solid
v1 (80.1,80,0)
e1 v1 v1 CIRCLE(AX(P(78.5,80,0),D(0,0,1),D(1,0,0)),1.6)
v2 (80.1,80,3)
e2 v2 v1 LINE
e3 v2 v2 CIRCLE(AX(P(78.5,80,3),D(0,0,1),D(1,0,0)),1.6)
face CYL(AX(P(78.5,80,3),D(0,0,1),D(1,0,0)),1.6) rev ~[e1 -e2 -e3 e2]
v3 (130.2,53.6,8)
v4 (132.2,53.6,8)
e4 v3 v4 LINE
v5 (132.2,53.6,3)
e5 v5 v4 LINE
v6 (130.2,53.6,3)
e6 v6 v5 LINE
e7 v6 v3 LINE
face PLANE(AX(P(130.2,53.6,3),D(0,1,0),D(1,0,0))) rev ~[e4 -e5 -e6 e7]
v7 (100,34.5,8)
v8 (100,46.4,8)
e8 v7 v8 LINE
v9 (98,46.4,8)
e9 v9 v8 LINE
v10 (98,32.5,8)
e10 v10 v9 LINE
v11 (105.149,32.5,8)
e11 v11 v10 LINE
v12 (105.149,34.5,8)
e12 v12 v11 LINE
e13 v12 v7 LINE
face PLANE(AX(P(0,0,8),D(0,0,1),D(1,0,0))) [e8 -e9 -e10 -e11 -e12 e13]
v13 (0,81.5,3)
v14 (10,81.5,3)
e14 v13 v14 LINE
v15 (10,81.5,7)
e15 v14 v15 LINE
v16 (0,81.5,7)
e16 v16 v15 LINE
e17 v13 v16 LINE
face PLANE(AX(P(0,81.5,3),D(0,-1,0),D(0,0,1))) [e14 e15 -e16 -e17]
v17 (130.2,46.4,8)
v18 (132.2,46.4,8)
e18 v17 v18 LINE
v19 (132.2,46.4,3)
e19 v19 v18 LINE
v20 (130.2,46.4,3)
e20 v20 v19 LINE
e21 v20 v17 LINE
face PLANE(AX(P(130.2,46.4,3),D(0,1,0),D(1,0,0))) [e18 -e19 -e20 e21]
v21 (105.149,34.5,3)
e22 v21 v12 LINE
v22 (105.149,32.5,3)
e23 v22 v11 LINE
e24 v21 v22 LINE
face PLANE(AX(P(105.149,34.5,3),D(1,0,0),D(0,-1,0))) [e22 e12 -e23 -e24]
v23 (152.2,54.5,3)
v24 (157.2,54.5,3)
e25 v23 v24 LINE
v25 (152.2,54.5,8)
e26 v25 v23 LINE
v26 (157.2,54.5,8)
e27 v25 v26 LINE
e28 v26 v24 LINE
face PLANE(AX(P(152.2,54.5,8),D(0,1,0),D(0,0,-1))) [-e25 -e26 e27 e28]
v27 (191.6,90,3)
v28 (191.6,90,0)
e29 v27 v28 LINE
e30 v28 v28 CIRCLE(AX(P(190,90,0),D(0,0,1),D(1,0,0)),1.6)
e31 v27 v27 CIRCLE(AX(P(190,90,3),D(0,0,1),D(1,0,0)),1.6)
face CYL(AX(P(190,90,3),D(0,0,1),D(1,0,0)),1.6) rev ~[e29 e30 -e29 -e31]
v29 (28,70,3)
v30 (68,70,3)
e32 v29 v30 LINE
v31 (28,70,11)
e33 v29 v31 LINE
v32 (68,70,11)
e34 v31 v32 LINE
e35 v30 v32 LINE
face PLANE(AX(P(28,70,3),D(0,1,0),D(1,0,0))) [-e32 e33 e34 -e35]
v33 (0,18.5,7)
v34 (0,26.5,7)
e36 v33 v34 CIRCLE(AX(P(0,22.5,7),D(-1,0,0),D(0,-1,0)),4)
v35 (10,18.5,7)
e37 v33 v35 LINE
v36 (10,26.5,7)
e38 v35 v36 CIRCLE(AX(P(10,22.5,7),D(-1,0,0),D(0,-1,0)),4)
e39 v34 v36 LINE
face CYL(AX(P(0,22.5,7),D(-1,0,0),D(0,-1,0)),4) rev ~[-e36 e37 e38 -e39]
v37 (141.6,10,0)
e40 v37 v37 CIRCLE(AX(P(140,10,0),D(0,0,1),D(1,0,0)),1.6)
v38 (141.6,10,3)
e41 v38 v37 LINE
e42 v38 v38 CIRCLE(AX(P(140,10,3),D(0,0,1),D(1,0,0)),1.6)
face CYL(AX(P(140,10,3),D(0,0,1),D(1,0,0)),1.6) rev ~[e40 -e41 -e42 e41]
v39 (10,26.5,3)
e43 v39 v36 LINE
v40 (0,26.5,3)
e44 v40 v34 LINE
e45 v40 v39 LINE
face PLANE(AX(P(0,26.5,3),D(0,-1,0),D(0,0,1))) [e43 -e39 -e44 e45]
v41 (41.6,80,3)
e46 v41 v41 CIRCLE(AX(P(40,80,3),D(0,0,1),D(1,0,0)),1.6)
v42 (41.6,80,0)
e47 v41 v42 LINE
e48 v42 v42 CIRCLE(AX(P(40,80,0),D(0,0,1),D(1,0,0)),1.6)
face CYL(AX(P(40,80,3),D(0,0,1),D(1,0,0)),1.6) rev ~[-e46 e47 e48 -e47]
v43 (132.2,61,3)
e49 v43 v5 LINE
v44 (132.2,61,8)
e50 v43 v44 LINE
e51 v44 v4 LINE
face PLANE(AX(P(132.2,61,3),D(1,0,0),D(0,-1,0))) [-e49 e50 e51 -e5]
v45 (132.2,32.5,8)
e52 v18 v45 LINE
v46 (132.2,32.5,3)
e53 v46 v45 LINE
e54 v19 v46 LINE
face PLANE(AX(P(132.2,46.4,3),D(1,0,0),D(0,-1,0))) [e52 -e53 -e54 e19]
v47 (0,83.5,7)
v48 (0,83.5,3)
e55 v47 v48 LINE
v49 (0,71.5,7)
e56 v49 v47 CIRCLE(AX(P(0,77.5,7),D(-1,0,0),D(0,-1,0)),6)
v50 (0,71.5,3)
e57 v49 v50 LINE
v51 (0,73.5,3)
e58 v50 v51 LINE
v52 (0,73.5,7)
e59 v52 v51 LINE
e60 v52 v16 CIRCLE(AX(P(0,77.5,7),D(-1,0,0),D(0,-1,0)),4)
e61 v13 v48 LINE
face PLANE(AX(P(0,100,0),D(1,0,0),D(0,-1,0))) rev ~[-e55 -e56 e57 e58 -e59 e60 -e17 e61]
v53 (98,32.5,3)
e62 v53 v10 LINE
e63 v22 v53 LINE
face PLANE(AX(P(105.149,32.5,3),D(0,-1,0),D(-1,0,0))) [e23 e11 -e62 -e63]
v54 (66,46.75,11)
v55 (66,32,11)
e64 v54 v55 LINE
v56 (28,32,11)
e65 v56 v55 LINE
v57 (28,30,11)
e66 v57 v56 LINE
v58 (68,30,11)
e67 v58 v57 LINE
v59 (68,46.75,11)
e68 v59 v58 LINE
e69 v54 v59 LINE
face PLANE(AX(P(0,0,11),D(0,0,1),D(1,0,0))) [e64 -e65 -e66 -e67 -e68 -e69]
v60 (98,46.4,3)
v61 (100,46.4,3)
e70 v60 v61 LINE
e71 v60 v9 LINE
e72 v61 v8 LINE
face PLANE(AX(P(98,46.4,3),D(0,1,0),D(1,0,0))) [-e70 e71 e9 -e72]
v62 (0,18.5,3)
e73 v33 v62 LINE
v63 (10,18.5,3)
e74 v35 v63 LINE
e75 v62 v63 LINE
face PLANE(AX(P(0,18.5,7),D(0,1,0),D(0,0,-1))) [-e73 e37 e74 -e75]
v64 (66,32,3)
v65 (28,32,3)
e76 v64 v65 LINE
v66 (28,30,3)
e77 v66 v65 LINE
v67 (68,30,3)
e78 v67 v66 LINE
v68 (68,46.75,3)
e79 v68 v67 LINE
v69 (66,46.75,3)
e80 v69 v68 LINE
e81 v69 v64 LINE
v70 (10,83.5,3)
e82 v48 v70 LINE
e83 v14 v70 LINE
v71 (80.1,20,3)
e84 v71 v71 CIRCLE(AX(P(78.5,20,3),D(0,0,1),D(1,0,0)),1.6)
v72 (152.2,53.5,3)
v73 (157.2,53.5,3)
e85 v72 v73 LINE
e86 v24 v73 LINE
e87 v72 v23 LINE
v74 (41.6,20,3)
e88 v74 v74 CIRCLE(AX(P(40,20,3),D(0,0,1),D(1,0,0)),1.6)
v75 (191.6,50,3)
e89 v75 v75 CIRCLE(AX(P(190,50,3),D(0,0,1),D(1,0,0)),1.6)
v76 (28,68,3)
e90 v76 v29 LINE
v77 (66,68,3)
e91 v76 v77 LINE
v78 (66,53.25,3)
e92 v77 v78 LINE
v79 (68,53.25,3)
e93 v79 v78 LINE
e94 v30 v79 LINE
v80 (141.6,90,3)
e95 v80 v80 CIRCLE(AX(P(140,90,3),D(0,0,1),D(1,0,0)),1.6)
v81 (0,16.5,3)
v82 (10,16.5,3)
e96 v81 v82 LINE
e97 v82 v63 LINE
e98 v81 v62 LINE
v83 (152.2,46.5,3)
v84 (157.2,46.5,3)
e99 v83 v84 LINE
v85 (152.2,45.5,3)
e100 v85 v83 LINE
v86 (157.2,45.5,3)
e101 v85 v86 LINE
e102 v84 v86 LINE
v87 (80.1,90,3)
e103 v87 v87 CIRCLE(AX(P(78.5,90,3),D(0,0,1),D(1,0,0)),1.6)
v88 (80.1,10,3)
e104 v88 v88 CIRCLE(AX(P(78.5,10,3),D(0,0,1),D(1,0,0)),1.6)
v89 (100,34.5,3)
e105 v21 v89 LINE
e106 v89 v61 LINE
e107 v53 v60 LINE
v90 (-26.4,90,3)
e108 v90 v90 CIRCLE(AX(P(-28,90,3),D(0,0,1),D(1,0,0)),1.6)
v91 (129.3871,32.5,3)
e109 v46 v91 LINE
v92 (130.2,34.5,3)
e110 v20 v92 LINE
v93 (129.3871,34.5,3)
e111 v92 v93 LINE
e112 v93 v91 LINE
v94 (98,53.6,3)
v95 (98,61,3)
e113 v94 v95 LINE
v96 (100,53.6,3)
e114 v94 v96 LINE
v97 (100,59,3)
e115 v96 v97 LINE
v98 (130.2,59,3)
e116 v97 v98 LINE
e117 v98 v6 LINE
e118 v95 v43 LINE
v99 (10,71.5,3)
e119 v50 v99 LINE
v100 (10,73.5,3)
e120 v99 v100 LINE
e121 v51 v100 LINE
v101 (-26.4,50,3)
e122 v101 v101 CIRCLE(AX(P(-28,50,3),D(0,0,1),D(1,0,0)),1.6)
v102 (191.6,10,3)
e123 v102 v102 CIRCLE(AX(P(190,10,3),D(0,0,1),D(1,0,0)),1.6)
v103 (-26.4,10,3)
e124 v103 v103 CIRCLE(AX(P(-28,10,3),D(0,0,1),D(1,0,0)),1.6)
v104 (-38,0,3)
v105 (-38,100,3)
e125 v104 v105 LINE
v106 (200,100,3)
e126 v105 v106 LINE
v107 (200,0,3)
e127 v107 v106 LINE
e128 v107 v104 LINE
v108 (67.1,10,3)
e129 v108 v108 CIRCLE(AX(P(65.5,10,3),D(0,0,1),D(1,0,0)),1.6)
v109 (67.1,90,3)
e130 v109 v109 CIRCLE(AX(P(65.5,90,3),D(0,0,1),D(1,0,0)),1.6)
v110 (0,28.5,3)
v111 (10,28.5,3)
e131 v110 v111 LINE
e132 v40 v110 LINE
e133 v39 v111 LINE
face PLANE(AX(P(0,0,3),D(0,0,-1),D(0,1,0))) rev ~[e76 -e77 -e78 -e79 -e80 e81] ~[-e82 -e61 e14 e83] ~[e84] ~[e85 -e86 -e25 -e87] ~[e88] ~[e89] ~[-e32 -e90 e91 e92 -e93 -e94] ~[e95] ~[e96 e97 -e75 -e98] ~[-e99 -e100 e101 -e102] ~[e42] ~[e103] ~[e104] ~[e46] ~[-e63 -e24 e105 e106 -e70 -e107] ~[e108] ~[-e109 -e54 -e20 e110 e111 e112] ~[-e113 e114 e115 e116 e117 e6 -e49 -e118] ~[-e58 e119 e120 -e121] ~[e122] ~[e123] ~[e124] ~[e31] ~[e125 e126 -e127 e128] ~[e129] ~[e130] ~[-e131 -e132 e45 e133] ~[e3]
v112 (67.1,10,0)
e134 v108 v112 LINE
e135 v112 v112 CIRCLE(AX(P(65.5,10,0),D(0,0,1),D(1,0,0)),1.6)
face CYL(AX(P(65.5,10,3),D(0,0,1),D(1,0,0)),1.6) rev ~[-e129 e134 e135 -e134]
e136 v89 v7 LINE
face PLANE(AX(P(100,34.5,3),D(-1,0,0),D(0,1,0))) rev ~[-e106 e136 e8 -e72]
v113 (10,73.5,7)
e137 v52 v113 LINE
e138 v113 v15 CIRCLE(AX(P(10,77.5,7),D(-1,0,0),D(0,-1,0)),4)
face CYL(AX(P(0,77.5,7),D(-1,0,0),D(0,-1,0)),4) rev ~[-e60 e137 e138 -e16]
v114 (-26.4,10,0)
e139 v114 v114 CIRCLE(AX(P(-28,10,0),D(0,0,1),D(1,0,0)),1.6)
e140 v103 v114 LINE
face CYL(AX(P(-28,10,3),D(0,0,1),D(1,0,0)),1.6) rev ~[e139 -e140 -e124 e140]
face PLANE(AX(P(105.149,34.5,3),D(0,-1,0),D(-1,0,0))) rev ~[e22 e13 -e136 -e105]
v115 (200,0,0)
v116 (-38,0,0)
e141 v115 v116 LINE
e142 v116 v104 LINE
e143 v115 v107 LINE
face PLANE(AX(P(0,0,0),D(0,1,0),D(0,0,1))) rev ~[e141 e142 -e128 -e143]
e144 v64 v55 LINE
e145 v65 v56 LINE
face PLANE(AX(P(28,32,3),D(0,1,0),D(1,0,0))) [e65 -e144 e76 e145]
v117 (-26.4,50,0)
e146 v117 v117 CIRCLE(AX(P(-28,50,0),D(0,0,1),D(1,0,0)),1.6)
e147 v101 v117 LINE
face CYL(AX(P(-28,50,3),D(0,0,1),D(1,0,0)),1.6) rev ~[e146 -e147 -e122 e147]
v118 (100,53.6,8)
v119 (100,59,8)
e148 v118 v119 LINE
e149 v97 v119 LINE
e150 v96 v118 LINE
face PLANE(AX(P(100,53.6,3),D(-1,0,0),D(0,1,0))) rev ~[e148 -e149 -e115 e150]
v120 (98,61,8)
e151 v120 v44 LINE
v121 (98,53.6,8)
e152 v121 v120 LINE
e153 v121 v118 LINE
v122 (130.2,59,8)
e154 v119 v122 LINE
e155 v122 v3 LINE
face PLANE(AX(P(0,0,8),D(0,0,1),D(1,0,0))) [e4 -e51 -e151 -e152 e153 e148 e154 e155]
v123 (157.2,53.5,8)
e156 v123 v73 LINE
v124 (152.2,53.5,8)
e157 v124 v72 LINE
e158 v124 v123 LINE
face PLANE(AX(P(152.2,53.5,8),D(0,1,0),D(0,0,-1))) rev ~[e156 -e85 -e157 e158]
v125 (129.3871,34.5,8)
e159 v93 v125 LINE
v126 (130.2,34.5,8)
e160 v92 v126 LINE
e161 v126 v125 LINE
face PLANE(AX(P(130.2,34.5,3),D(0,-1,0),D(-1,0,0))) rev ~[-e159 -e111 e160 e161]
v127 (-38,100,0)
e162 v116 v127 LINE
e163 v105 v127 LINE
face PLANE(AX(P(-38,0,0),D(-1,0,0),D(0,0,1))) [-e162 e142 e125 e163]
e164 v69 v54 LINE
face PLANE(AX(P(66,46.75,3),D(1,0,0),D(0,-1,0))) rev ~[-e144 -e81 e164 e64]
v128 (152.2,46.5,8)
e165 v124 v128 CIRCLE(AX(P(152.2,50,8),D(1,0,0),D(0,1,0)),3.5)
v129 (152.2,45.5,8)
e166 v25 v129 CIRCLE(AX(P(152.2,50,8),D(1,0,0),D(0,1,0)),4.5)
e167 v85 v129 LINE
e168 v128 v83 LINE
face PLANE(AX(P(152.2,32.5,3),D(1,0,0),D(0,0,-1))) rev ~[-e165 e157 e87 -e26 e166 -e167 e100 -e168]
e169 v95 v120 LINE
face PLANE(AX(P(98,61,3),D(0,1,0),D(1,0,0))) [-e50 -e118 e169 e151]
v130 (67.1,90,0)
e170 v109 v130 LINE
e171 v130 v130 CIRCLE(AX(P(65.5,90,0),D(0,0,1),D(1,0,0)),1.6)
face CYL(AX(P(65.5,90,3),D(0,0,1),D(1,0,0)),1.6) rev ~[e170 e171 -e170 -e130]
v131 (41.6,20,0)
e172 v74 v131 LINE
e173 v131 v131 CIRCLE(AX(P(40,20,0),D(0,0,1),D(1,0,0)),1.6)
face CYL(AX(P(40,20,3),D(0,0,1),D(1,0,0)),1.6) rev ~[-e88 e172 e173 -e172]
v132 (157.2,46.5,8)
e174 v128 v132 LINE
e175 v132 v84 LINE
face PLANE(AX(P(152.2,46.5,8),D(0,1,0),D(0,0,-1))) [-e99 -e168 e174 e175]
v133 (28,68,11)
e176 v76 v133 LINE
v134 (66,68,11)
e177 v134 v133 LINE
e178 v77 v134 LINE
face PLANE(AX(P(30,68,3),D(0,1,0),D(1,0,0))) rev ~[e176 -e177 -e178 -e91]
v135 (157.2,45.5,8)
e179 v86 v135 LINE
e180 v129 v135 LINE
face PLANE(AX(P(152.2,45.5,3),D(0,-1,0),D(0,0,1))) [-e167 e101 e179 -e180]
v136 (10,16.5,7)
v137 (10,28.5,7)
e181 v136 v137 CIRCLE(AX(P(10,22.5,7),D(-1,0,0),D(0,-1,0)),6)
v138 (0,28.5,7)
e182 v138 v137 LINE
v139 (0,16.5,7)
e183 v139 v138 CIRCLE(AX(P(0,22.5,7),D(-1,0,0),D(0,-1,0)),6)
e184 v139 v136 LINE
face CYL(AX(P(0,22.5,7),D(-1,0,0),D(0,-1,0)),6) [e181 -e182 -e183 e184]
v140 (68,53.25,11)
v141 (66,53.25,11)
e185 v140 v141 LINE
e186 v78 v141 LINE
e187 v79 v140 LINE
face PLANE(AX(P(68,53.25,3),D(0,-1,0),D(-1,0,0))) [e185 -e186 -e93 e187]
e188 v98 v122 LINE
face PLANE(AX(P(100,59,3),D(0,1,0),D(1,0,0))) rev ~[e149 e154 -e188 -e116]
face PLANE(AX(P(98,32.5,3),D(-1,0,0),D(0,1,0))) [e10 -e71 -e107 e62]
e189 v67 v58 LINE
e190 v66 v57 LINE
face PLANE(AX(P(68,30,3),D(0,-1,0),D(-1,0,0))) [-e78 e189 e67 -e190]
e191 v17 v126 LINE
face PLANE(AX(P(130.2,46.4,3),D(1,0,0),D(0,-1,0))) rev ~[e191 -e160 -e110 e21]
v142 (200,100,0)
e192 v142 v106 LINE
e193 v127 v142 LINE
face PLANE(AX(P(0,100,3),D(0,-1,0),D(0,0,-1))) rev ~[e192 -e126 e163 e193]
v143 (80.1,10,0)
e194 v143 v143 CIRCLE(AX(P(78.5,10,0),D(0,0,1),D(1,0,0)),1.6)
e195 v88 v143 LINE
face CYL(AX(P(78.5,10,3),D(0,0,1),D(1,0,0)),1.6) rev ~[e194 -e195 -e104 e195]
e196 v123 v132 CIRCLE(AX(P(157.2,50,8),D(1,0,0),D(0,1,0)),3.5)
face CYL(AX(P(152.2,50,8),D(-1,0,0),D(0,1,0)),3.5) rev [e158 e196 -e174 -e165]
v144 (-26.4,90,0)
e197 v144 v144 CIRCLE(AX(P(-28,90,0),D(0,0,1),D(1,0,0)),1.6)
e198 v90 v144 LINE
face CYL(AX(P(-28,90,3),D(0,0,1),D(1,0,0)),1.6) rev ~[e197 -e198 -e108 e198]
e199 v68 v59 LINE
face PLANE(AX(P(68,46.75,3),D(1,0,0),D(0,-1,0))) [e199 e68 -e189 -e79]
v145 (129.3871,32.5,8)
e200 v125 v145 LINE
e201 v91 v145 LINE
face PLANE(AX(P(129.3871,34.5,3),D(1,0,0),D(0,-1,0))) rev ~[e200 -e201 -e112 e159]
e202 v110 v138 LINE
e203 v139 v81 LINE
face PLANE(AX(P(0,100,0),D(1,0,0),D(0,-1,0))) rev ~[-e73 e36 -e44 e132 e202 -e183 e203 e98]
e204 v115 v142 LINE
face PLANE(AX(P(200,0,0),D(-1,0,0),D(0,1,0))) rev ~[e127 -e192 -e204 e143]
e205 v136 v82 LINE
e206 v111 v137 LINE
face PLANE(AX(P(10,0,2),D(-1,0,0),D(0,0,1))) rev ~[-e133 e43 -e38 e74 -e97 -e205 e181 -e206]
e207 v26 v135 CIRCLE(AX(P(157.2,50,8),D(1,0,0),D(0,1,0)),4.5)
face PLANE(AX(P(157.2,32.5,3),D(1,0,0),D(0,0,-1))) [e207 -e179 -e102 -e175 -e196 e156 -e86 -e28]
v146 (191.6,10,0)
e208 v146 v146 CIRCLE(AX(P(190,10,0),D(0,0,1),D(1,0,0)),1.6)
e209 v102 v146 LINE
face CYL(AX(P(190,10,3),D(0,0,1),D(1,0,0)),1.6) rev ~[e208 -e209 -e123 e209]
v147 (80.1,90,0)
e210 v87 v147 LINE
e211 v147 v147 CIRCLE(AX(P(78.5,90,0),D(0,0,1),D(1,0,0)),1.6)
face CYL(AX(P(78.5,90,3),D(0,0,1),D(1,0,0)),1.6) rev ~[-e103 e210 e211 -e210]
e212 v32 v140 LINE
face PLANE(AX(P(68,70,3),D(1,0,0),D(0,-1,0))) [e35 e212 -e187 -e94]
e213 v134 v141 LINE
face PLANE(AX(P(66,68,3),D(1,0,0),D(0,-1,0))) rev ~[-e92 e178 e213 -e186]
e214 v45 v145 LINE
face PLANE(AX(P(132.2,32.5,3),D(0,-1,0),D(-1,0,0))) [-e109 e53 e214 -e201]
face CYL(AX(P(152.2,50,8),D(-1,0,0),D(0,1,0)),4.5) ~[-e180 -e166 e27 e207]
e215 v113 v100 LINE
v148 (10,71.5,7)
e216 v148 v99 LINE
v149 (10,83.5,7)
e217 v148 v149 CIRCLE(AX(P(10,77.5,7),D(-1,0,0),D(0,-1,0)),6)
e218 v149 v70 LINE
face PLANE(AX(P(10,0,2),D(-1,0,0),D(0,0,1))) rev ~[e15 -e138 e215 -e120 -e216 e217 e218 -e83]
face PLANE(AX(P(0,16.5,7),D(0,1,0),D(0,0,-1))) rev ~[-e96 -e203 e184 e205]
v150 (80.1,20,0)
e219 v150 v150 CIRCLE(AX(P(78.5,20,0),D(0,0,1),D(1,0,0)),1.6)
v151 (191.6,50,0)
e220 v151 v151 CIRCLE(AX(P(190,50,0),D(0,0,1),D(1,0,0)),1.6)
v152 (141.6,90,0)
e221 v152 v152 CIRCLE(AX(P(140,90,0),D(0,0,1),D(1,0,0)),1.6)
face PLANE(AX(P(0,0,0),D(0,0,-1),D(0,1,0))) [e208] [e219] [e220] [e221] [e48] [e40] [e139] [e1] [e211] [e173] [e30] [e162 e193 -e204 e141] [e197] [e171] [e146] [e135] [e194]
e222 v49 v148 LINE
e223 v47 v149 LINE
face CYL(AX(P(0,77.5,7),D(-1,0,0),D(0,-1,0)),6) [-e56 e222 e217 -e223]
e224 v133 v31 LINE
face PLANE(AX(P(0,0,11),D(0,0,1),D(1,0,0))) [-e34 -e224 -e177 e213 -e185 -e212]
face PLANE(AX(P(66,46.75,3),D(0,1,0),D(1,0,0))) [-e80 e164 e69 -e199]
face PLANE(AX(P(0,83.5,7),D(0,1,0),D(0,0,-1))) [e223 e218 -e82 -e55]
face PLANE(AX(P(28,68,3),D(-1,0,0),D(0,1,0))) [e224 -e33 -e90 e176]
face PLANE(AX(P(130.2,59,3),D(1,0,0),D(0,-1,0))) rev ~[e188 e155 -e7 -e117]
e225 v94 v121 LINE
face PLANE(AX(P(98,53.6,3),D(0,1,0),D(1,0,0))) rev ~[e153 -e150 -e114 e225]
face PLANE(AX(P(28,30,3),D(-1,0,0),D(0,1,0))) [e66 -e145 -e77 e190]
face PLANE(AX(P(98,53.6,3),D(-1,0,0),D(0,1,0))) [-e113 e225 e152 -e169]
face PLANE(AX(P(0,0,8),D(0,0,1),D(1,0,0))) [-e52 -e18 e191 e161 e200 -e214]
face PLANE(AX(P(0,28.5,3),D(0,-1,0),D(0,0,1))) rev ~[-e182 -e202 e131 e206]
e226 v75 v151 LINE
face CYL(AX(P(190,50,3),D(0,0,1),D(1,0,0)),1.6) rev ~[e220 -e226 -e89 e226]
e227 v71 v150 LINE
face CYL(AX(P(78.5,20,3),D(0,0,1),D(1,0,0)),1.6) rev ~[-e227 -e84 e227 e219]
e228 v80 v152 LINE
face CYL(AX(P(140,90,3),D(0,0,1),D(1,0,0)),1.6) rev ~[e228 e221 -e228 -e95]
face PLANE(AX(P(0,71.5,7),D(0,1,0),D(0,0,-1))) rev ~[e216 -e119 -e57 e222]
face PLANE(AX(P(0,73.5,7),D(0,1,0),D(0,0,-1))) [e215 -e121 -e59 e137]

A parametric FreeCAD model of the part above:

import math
import FreeCAD as App
import Part
import Sketcher
Q = App.Units.Quantity


def add_polygon(sketch, points):
    """Adds a closed chain of lines whose ends are joined by coincident constraints."""
    first, n = sketch.GeometryCount, len(points)
    for a, b in zip(points, points[1:] + points[:1]):
        sketch.addGeometry(Part.LineSegment(App.Vector(*a, 0), App.Vector(*b, 0)), False)
    for i in range(n):
        sketch.addConstraint(Sketcher.Constraint("Coincident", first + i, 2, first + (i + 1) % n, 1))

doc = App.newDocument("Part")
body = doc.addObject("PartDesign::Body", "Body")

# Sketch on XY plane
sketch1 = body.newObject("Sketcher::SketchObject", "Sketch")
sketch1.AttachmentSupport = (doc.getObject("XY_Plane"), [""])
sketch1.MapMode = "FlatFace"
add_polygon(sketch1, [(0, 100), (0, 0), (200, 0), (200, 100)])  # lines 0-3
sketch1.addConstraint(Sketcher.Constraint("Vertical", 0))
sketch1.addConstraint(Sketcher.Constraint("Horizontal", 1))
sketch1.addConstraint(Sketcher.Constraint("Vertical", 2))
sketch1.addConstraint(Sketcher.Constraint("Horizontal", 3))
sketch1.addConstraint(Sketcher.Constraint("Coincident", 0, 2, -1, 1))
sketch1.addConstraint(Sketcher.Constraint("DistanceX", 1, 1, 1, 2, Q("200 mm")))
sketch1.addConstraint(Sketcher.Constraint("DistanceY", 0, 2, 0, 1, Q("100 mm")))
pad1 = body.newObject("PartDesign::Pad", "Pad")
pad1.Profile = sketch1
pad1.Length = 3

# Sketch on YZ plane
sketch2 = body.newObject("Sketcher::SketchObject", "Sketch001")
sketch2.AttachmentSupport = (doc.getObject("YZ_Plane"), [""])
sketch2.MapMode = "FlatFace"
sketch2.addGeometry(Part.LineSegment(App.Vector(73.5, 3, 0), App.Vector(71.5, 3, 0)), False)
sketch2.addGeometry(Part.LineSegment(App.Vector(71.5, 3, 0), App.Vector(71.5, 7, 0)), False)
sketch2.addGeometry(Part.ArcOfCircle(Part.Circle(App.Vector(77.5, 7, 0), App.Vector(0, 0, 1), 6), math.radians(0), math.radians(180)), False)
sketch2.addGeometry(Part.LineSegment(App.Vector(83.5, 7, 0), App.Vector(83.5, 3, 0)), False)
sketch2.addGeometry(Part.LineSegment(App.Vector(83.5, 3, 0), App.Vector(81.5, 3, 0)), False)
sketch2.addGeometry(Part.LineSegment(App.Vector(81.5, 3, 0), App.Vector(81.5, 7, 0)), False)
sketch2.addGeometry(Part.ArcOfCircle(Part.Circle(App.Vector(77.5, 7, 0), App.Vector(0, 0, 1), 4), math.radians(0), math.radians(180)), False)
sketch2.addGeometry(Part.LineSegment(App.Vector(73.5, 7, 0), App.Vector(73.5, 3, 0)), False)
sketch2.addGeometry(Part.LineSegment(App.Vector(18.5, 3, 0), App.Vector(16.5, 3, 0)), False)
sketch2.addGeometry(Part.LineSegment(App.Vector(16.5, 3, 0), App.Vector(16.5, 7, 0)), False)
sketch2.addGeometry(Part.ArcOfCircle(Part.Circle(App.Vector(22.5, 7, 0), App.Vector(0, 0, 1), 6), math.radians(0), math.radians(180)), False)
sketch2.addGeometry(Part.LineSegment(App.Vector(28.5, 7, 0), App.Vector(28.5, 3, 0)), False)
sketch2.addGeometry(Part.LineSegment(App.Vector(28.5, 3, 0), App.Vector(26.5, 3, 0)), False)
sketch2.addGeometry(Part.LineSegment(App.Vector(26.5, 3, 0), App.Vector(26.5, 7, 0)), False)
sketch2.addGeometry(Part.ArcOfCircle(Part.Circle(App.Vector(22.5, 7, 0), App.Vector(0, 0, 1), 4), math.radians(0), math.radians(180)), False)
sketch2.addGeometry(Part.LineSegment(App.Vector(18.5, 7, 0), App.Vector(18.5, 3, 0)), False)
sketch2.addConstraint(Sketcher.Constraint("Coincident", 0, 2, 1, 1))
sketch2.addConstraint(Sketcher.Constraint("Tangent", 1, 2, 2, 2))
sketch2.addConstraint(Sketcher.Constraint("Tangent", 2, 1, 3, 1))
sketch2.addConstraint(Sketcher.Constraint("Coincident", 3, 2, 4, 1))
sketch2.addConstraint(Sketcher.Constraint("Coincident", 4, 2, 5, 1))
sketch2.addConstraint(Sketcher.Constraint("Tangent", 5, 2, 6, 1))
sketch2.addConstraint(Sketcher.Constraint("Tangent", 6, 2, 7, 1))
sketch2.addConstraint(Sketcher.Constraint("Coincident", 7, 2, 0, 1))
sketch2.addConstraint(Sketcher.Constraint("Coincident", 8, 2, 9, 1))
sketch2.addConstraint(Sketcher.Constraint("Tangent", 9, 2, 10, 2))
sketch2.addConstraint(Sketcher.Constraint("Tangent", 10, 1, 11, 1))
sketch2.addConstraint(Sketcher.Constraint("Coincident", 11, 2, 12, 1))
sketch2.addConstraint(Sketcher.Constraint("Coincident", 12, 2, 13, 1))
sketch2.addConstraint(Sketcher.Constraint("Tangent", 13, 2, 14, 1))
sketch2.addConstraint(Sketcher.Constraint("Tangent", 14, 2, 15, 1))
sketch2.addConstraint(Sketcher.Constraint("Coincident", 15, 2, 8, 1))
sketch2.addConstraint(Sketcher.Constraint("Horizontal", 0))
sketch2.addConstraint(Sketcher.Constraint("Vertical", 1))
sketch2.addConstraint(Sketcher.Constraint("Vertical", 3))
sketch2.addConstraint(Sketcher.Constraint("Horizontal", 4))
sketch2.addConstraint(Sketcher.Constraint("Vertical", 5))
sketch2.addConstraint(Sketcher.Constraint("Vertical", 7))
sketch2.addConstraint(Sketcher.Constraint("Horizontal", 8))
sketch2.addConstraint(Sketcher.Constraint("Vertical", 9))
sketch2.addConstraint(Sketcher.Constraint("Vertical", 11))
sketch2.addConstraint(Sketcher.Constraint("Horizontal", 12))
sketch2.addConstraint(Sketcher.Constraint("Vertical", 13))
sketch2.addConstraint(Sketcher.Constraint("Vertical", 15))
sketch2.addConstraint(Sketcher.Constraint("Coincident", 6, 3, 2, 3))
sketch2.addConstraint(Sketcher.Constraint("Coincident", 14, 3, 10, 3))
sketch2.addConstraint(Sketcher.Constraint("Equal", 2, 10))
sketch2.addConstraint(Sketcher.Constraint("Equal", 6, 14))
sketch2.addConstraint(Sketcher.Constraint("Horizontal", 6, 3, 10, 3))
sketch2.addConstraint(Sketcher.Constraint("Horizontal", 0, 2, 3, 2))
sketch2.addConstraint(Sketcher.Constraint("Horizontal", 7, 2, 8, 2))
sketch2.addConstraint(Sketcher.Constraint("Horizontal", 8, 2, 11, 2))
sketch2.addConstraint(Sketcher.Constraint("Radius", 6, Q("4 mm")))
sketch2.addConstraint(Sketcher.Constraint("DistanceX", 0, 2, 0, 1, Q("2 mm")))
sketch2.addConstraint(Sketcher.Constraint("DistanceY", 1, 1, 1, 2, Q("4 mm")))
sketch2.addConstraint(Sketcher.Constraint("DistanceX", 10, 3, 2, 3, Q("55 mm")))
sketch2.addConstraint(Sketcher.Constraint("DistanceY", -1, 1, 2, 3, Q("7 mm")))
sketch2.addConstraint(Sketcher.Constraint("DistanceX", -1, 1, 2, 3, Q("77.5 mm")))
pad2 = body.newObject("PartDesign::Pad", "Pad001")
pad2.Profile = sketch2
pad2.Length = 10

# Sketch on XY plane
sketch3 = body.newObject("Sketcher::SketchObject", "Sketch002")
sketch3.AttachmentSupport = (doc.getObject("XY_Plane"), [""])
sketch3.MapMode = "FlatFace"
sketch3.AttachmentOffset = App.Placement(App.Vector(0, 0, 3), App.Rotation())
add_polygon(sketch3, [(28, 30), (68, 30), (68, 46.8), (66, 46.8), (66, 32), (28, 32)])  # lines 0-5
add_polygon(sketch3, [(66, 53.2), (68, 53.2), (68, 70), (28, 70), (28, 68), (66, 68)])  # lines 6-11
sketch3.addConstraint(Sketcher.Constraint("Horizontal", 0))
sketch3.addConstraint(Sketcher.Constraint("Vertical", 1))
sketch3.addConstraint(Sketcher.Constraint("Horizontal", 2))
sketch3.addConstraint(Sketcher.Constraint("Vertical", 3))
sketch3.addConstraint(Sketcher.Constraint("Horizontal", 4))
sketch3.addConstraint(Sketcher.Constraint("Vertical", 5))
sketch3.addConstraint(Sketcher.Constraint("Horizontal", 6))
sketch3.addConstraint(Sketcher.Constraint("Vertical", 7))
sketch3.addConstraint(Sketcher.Constraint("Horizontal", 8))
sketch3.addConstraint(Sketcher.Constraint("Vertical", 9))
sketch3.addConstraint(Sketcher.Constraint("Horizontal", 10))
sketch3.addConstraint(Sketcher.Constraint("Vertical", 11))
sketch3.addConstraint(Sketcher.Constraint("Vertical", 1, 2, 6, 2))
sketch3.addConstraint(Sketcher.Constraint("Vertical", 5, 2, 8, 2))
sketch3.addConstraint(Sketcher.Constraint("Vertical", 3, 2, 10, 2))
sketch3.addConstraint(Sketcher.Constraint("Equal", 6, 5))
sketch3.addConstraint(Sketcher.Constraint("Equal", 1, 7))
sketch3.addConstraint(Sketcher.Constraint("Equal", 5, 9))
sketch3.addConstraint(Sketcher.Constraint("DistanceX", 2, 2, 2, 1, Q("2 mm")))
sketch3.addConstraint(Sketcher.Constraint("DistanceX", -1, 1, 4, 2, Q("28 mm")))
sketch3.addConstraint(Sketcher.Constraint("DistanceY", 4, 2, 9, 2, Q("36 mm")))
sketch3.addConstraint(Sketcher.Constraint("DistanceY", 1, 2, 6, 2, Q("6.5 mm")))
sketch3.addConstraint(Sketcher.Constraint("DistanceX", 0, 1, 0, 2, Q("40 mm")))
sketch3.addConstraint(Sketcher.Constraint("DistanceY", -1, 1, 0, 2, Q("30 mm")))
pad3 = body.newObject("PartDesign::Pad", "Pad002")
pad3.Profile = sketch3
pad3.Length = 8

# Sketch on XY plane
sketch4 = body.newObject("Sketcher::SketchObject", "Sketch003")
sketch4.AttachmentSupport = (doc.getObject("XY_Plane"), [""])
sketch4.MapMode = "FlatFace"
sketch4.AttachmentOffset = App.Placement(App.Vector(0, 0, 3), App.Rotation())
add_polygon(sketch4, [(100, 53.6), (100, 59), (130.2, 59), (130.2, 53.6), (132.2, 53.6), (132.2, 61), (98, 61), (98, 53.6)])  # lines 0-7
add_polygon(sketch4, [(100, 34.5), (100, 46.4), (98, 46.4), (98, 32.5), (105.1, 32.5), (105.1, 34.5)])  # lines 8-13
add_polygon(sketch4, [(132.2, 46.4), (130.2, 46.4), (130.2, 34.5), (129.4, 34.5), (129.4, 32.5), (132.2, 32.5)])  # lines 14-19
sketch4.addConstraint(Sketcher.Constraint("Vertical", 0))
sketch4.addConstraint(Sketcher.Constraint("Horizontal", 1))
sketch4.addConstraint(Sketcher.Constraint("Vertical", 2))
sketch4.addConstraint(Sketcher.Constraint("Horizontal", 3))
sketch4.addConstraint(Sketcher.Constraint("Vertical", 4))
sketch4.addConstraint(Sketcher.Constraint("Horizontal", 5))
sketch4.addConstraint(Sketcher.Constraint("Vertical", 6))
sketch4.addConstraint(Sketcher.Constraint("Horizontal", 7))
sketch4.addConstraint(Sketcher.Constraint("Vertical", 8))
sketch4.addConstraint(Sketcher.Constraint("Horizontal", 9))
sketch4.addConstraint(Sketcher.Constraint("Vertical", 10))
sketch4.addConstraint(Sketcher.Constraint("Horizontal", 11))
sketch4.addConstraint(Sketcher.Constraint("Vertical", 12))
sketch4.addConstraint(Sketcher.Constraint("Horizontal", 13))
sketch4.addConstraint(Sketcher.Constraint("Horizontal", 14))
sketch4.addConstraint(Sketcher.Constraint("Vertical", 15))
sketch4.addConstraint(Sketcher.Constraint("Horizontal", 16))
sketch4.addConstraint(Sketcher.Constraint("Vertical", 17))
sketch4.addConstraint(Sketcher.Constraint("Horizontal", 18))
sketch4.addConstraint(Sketcher.Constraint("Vertical", 19))
sketch4.addConstraint(Sketcher.Constraint("Horizontal", 3, 2, 6, 2))
sketch4.addConstraint(Sketcher.Constraint("Horizontal", 9, 2, 14, 2))
sketch4.addConstraint(Sketcher.Constraint("Horizontal", 13, 2, 15, 2))
sketch4.addConstraint(Sketcher.Constraint("Horizontal", 11, 2, 17, 2))
sketch4.addConstraint(Sketcher.Constraint("Vertical", 7, 2, 8, 2))
sketch4.addConstraint(Sketcher.Constraint("Vertical", 6, 2, 9, 2))
sketch4.addConstraint(Sketcher.Constraint("Vertical", 2, 2, 14, 2))
sketch4.addConstraint(Sketcher.Constraint("Vertical", 4, 2, 18, 2))
sketch4.addConstraint(Sketcher.Constraint("Equal", 3, 7))
sketch4.addConstraint(Sketcher.Constraint("Equal", 14, 12))
sketch4.addConstraint(Sketcher.Constraint("DistanceX", 3, 1, 3, 2, Q("2 mm")))
sketch4.addConstraint(Sketcher.Constraint("DistanceX", 1, 1, 1, 2, Q("30.2 mm")))
sketch4.addConstraint(Sketcher.Constraint("DistanceY", 1, 2, 4, 2, Q("2 mm")))
sketch4.addConstraint(Sketcher.Constraint("DistanceY", 8, 2, 7, 2, Q("7.2 mm")))
sketch4.addConstraint(Sketcher.Constraint("DistanceY", 15, 2, 1, 2, Q("24.5 mm")))
sketch4.addConstraint(Sketcher.Constraint("DistanceY", 0, 1, 0, 2, Q("5.4 mm")))
sketch4.addConstraint(Sketcher.Constraint("DistanceX", -1, 1, 0, 2, Q("100 mm")))
sketch4.addConstraint(Sketcher.Constraint("DistanceY", -1, 1, 0, 2, Q("59 mm")))
sketch4.addConstraint(Sketcher.Constraint("DistanceX", 11, 1, 11, 2, Q("7.149 mm")))
sketch4.addConstraint(Sketcher.Constraint("DistanceX", 16, 2, 16, 1, Q("0.813 mm")))
pad4 = body.newObject("PartDesign::Pad", "Pad003")
pad4.Profile = sketch4
pad4.Length = 5

# Sketch on YZ plane
sketch5 = body.newObject("Sketcher::SketchObject", "Sketch004")
sketch5.AttachmentSupport = (doc.getObject("YZ_Plane"), [""])
sketch5.MapMode = "FlatFace"
add_polygon(sketch5, [(100, 0), (0, 0), (0, 3), (100, 3)])  # lines 0-3
sketch5.addConstraint(Sketcher.Constraint("Horizontal", 0))
sketch5.addConstraint(Sketcher.Constraint("Vertical", 1))
sketch5.addConstraint(Sketcher.Constraint("Horizontal", 2))
sketch5.addConstraint(Sketcher.Constraint("Vertical", 3))
sketch5.addConstraint(Sketcher.Constraint("Coincident", 0, 2, -1, 1))
sketch5.addConstraint(Sketcher.Constraint("DistanceX", 0, 2, 0, 1, Q("100 mm")))
sketch5.addConstraint(Sketcher.Constraint("DistanceY", 1, 1, 1, 2, Q("3 mm")))
pad5 = body.newObject("PartDesign::Pad", "Pad004")
pad5.Profile = sketch5
pad5.Length = 38
pad5.Reversed = True

# Sketch on XY plane
sketch6 = body.newObject("Sketcher::SketchObject", "Sketch005")
sketch6.AttachmentSupport = (doc.getObject("XY_Plane"), [""])
sketch6.MapMode = "FlatFace"
sketch6.AttachmentOffset = App.Placement(App.Vector(0, 0, 3), App.Rotation())
sketch6.addGeometry(Part.Circle(App.Vector(-28, 10, 0), App.Vector(0, 0, 1), 1.6), False)
sketch6.addGeometry(Part.Circle(App.Vector(140, 10, 0), App.Vector(0, 0, 1), 1.6), False)
sketch6.addGeometry(Part.Circle(App.Vector(190, 10, 0), App.Vector(0, 0, 1), 1.6), False)
sketch6.addGeometry(Part.Circle(App.Vector(190, 50, 0), App.Vector(0, 0, 1), 1.6), False)
sketch6.addGeometry(Part.Circle(App.Vector(190, 90, 0), App.Vector(0, 0, 1), 1.6), False)
sketch6.addGeometry(Part.Circle(App.Vector(140, 90, 0), App.Vector(0, 0, 1), 1.6), False)
sketch6.addGeometry(Part.Circle(App.Vector(-28, 90, 0), App.Vector(0, 0, 1), 1.6), False)
sketch6.addGeometry(Part.Circle(App.Vector(-28, 50, 0), App.Vector(0, 0, 1), 1.6), False)
sketch6.addGeometry(Part.Circle(App.Vector(40, 80, 0), App.Vector(0, 0, 1), 1.6), False)
sketch6.addGeometry(Part.Circle(App.Vector(78.5, 80, 0), App.Vector(0, 0, 1), 1.6), False)
sketch6.addGeometry(Part.Circle(App.Vector(40, 20, 0), App.Vector(0, 0, 1), 1.6), False)
sketch6.addGeometry(Part.Circle(App.Vector(78.5, 20, 0), App.Vector(0, 0, 1), 1.6), False)
sketch6.addConstraint(Sketcher.Constraint("Equal", 0, 1))
sketch6.addConstraint(Sketcher.Constraint("Equal", 1, 2))
sketch6.addConstraint(Sketcher.Constraint("Equal", 2, 3))
sketch6.addConstraint(Sketcher.Constraint("Equal", 3, 4))
sketch6.addConstraint(Sketcher.Constraint("Equal", 4, 5))
sketch6.addConstraint(Sketcher.Constraint("Equal", 5, 6))
sketch6.addConstraint(Sketcher.Constraint("Equal", 6, 7))
sketch6.addConstraint(Sketcher.Constraint("Equal", 7, 8))
sketch6.addConstraint(Sketcher.Constraint("Equal", 8, 9))
sketch6.addConstraint(Sketcher.Constraint("Equal", 9, 10))
sketch6.addConstraint(Sketcher.Constraint("Equal", 10, 11))
sketch6.addConstraint(Sketcher.Constraint("Horizontal", 0, 3, 1, 3))
sketch6.addConstraint(Sketcher.Constraint("Horizontal", 1, 3, 2, 3))
sketch6.addConstraint(Sketcher.Constraint("Horizontal", 4, 3, 5, 3))
sketch6.addConstraint(Sketcher.Constraint("Horizontal", 5, 3, 6, 3))
sketch6.addConstraint(Sketcher.Constraint("Horizontal", 3, 3, 7, 3))
sketch6.addConstraint(Sketcher.Constraint("Horizontal", 8, 3, 9, 3))
sketch6.addConstraint(Sketcher.Constraint("Horizontal", 10, 3, 11, 3))
sketch6.addConstraint(Sketcher.Constraint("Vertical", 2, 3, 3, 3))
sketch6.addConstraint(Sketcher.Constraint("Vertical", 3, 3, 4, 3))
sketch6.addConstraint(Sketcher.Constraint("Vertical", 1, 3, 5, 3))
sketch6.addConstraint(Sketcher.Constraint("Vertical", 0, 3, 6, 3))
sketch6.addConstraint(Sketcher.Constraint("Vertical", 6, 3, 7, 3))
sketch6.addConstraint(Sketcher.Constraint("Vertical", 8, 3, 10, 3))
sketch6.addConstraint(Sketcher.Constraint("Vertical", 9, 3, 11, 3))
sketch6.addConstraint(Sketcher.Constraint("Diameter", 0, Q("3.2 mm")))
sketch6.addConstraint(Sketcher.Constraint("DistanceY", -1, 1, 0, 3, Q("10 mm")))
sketch6.addConstraint(Sketcher.Constraint("DistanceY", -1, 1, 3, 3, Q("50 mm")))
sketch6.addConstraint(Sketcher.Constraint("DistanceX", -1, 1, 8, 3, Q("40 mm")))
sketch6.addConstraint(Sketcher.Constraint("DistanceX", 1, 3, 2, 3, Q("50 mm")))
sketch6.addConstraint(Sketcher.Constraint("DistanceY", 3, 3, 4, 3, Q("40 mm")))
sketch6.addConstraint(Sketcher.Constraint("DistanceY", 8, 3, 6, 3, Q("10 mm")))
sketch6.addConstraint(Sketcher.Constraint("DistanceY", 10, 3, 8, 3, Q("60 mm")))
sketch6.addConstraint(Sketcher.Constraint("DistanceX", 8, 3, 9, 3, Q("38.5 mm")))
sketch6.addConstraint(Sketcher.Constraint("DistanceX", 0, 3, -1, 1, Q("28 mm")))
sketch6.addConstraint(Sketcher.Constraint("DistanceX", -1, 1, 1, 3, Q("140 mm")))
pocket1 = body.newObject("PartDesign::Pocket", "Pocket")
pocket1.Profile = sketch6
pocket1.Length = 5

# Sketch on YZ plane
sketch7 = body.newObject("Sketcher::SketchObject", "Sketch006")
sketch7.AttachmentSupport = (doc.getObject("YZ_Plane"), [""])
sketch7.MapMode = "FlatFace"
sketch7.AttachmentOffset = App.Placement(App.Vector(0, 0, 152.2), App.Rotation())
sketch7.addGeometry(Part.LineSegment(App.Vector(45.5, 3, 0), App.Vector(46.5, 3, 0)), False)
sketch7.addGeometry(Part.LineSegment(App.Vector(46.5, 3, 0), App.Vector(46.5, 8, 0)), False)
sketch7.addGeometry(Part.ArcOfCircle(Part.Circle(App.Vector(50, 8, 0), App.Vector(0, 0, 1), 3.5), math.radians(0), math.radians(180)), False)
sketch7.addGeometry(Part.LineSegment(App.Vector(53.5, 8, 0), App.Vector(53.5, 3, 0)), False)
sketch7.addGeometry(Part.LineSegment(App.Vector(53.5, 3, 0), App.Vector(54.5, 3, 0)), False)
sketch7.addGeometry(Part.LineSegment(App.Vector(54.5, 3, 0), App.Vector(54.5, 8, 0)), False)
sketch7.addGeometry(Part.ArcOfCircle(Part.Circle(App.Vector(50, 8, 0), App.Vector(0, 0, 1), 4.5), math.radians(0), math.radians(180)), False)
sketch7.addGeometry(Part.LineSegment(App.Vector(45.5, 8, 0), App.Vector(45.5, 3, 0)), False)
sketch7.addConstraint(Sketcher.Constraint("Coincident", 0, 2, 1, 1))
sketch7.addConstraint(Sketcher.Constraint("Tangent", 1, 2, 2, 2))
sketch7.addConstraint(Sketcher.Constraint("Tangent", 2, 1, 3, 1))
sketch7.addConstraint(Sketcher.Constraint("Coincident", 3, 2, 4, 1))
sketch7.addConstraint(Sketcher.Constraint("Coincident", 4, 2, 5, 1))
sketch7.addConstraint(Sketcher.Constraint("Tangent", 5, 2, 6, 1))
sketch7.addConstraint(Sketcher.Constraint("Tangent", 6, 2, 7, 1))
sketch7.addConstraint(Sketcher.Constraint("Coincident", 7, 2, 0, 1))
sketch7.addConstraint(Sketcher.Constraint("Horizontal", 0))
sketch7.addConstraint(Sketcher.Constraint("Vertical", 1))
sketch7.addConstraint(Sketcher.Constraint("Vertical", 3))
sketch7.addConstraint(Sketcher.Constraint("Horizontal", 4))
sketch7.addConstraint(Sketcher.Constraint("Vertical", 5))
sketch7.addConstraint(Sketcher.Constraint("Vertical", 7))
sketch7.addConstraint(Sketcher.Constraint("Coincident", 6, 3, 2, 3))
sketch7.addConstraint(Sketcher.Constraint("Horizontal", 0, 2, 3, 2))
sketch7.addConstraint(Sketcher.Constraint("Radius", 2, Q("3.5 mm")))
sketch7.addConstraint(Sketcher.Constraint("Radius", 6, Q("4.5 mm")))
sketch7.addConstraint(Sketcher.Constraint("DistanceY", 1, 1, 1, 2, Q("5 mm")))
sketch7.addConstraint(Sketcher.Constraint("DistanceX", -1, 1, 2, 3, Q("50 mm")))
sketch7.addConstraint(Sketcher.Constraint("DistanceY", -1, 1, 2, 3, Q("8 mm")))
pad6 = body.newObject("PartDesign::Pad", "Pad005")
pad6.Profile = sketch7
pad6.Length = 5

# Sketch on XY plane
sketch8 = body.newObject("Sketcher::SketchObject", "Sketch007")
sketch8.AttachmentSupport = (doc.getObject("XY_Plane"), [""])
sketch8.MapMode = "FlatFace"
sketch8.AttachmentOffset = App.Placement(App.Vector(0, 0, 3), App.Rotation())
sketch8.addGeometry(Part.Circle(App.Vector(65.5, 90, 0), App.Vector(0, 0, 1), 1.6), False)
sketch8.addGeometry(Part.Circle(App.Vector(78.5, 90, 0), App.Vector(0, 0, 1), 1.6), False)
sketch8.addGeometry(Part.Circle(App.Vector(65.5, 10, 0), App.Vector(0, 0, 1), 1.6), False)
sketch8.addGeometry(Part.Circle(App.Vector(78.5, 10, 0), App.Vector(0, 0, 1), 1.6), False)
sketch8.addConstraint(Sketcher.Constraint("Equal", 0, 1))
sketch8.addConstraint(Sketcher.Constraint("Equal", 1, 2))
sketch8.addConstraint(Sketcher.Constraint("Equal", 2, 3))
sketch8.addConstraint(Sketcher.Constraint("Horizontal", 0, 3, 1, 3))
sketch8.addConstraint(Sketcher.Constraint("Horizontal", 2, 3, 3, 3))
sketch8.addConstraint(Sketcher.Constraint("Vertical", 0, 3, 2, 3))
sketch8.addConstraint(Sketcher.Constraint("Vertical", 1, 3, 3, 3))
sketch8.addConstraint(Sketcher.Constraint("Diameter", 0, Q("3.2 mm")))
sketch8.addConstraint(Sketcher.Constraint("DistanceX", 0, 3, 1, 3, Q("13 mm")))
sketch8.addConstraint(Sketcher.Constraint("DistanceY", -1, 1, 0, 3, Q("90 mm")))
sketch8.addConstraint(Sketcher.Constraint("DistanceY", -1, 1, 2, 3, Q("10 mm")))
sketch8.addConstraint(Sketcher.Constraint("DistanceX", -1, 1, 0, 3, Q("65.5 mm")))
pocket2 = body.newObject("PartDesign::Pocket", "Pocket001")
pocket2.Profile = sketch8
pocket2.Length = 10

doc.recompute()
